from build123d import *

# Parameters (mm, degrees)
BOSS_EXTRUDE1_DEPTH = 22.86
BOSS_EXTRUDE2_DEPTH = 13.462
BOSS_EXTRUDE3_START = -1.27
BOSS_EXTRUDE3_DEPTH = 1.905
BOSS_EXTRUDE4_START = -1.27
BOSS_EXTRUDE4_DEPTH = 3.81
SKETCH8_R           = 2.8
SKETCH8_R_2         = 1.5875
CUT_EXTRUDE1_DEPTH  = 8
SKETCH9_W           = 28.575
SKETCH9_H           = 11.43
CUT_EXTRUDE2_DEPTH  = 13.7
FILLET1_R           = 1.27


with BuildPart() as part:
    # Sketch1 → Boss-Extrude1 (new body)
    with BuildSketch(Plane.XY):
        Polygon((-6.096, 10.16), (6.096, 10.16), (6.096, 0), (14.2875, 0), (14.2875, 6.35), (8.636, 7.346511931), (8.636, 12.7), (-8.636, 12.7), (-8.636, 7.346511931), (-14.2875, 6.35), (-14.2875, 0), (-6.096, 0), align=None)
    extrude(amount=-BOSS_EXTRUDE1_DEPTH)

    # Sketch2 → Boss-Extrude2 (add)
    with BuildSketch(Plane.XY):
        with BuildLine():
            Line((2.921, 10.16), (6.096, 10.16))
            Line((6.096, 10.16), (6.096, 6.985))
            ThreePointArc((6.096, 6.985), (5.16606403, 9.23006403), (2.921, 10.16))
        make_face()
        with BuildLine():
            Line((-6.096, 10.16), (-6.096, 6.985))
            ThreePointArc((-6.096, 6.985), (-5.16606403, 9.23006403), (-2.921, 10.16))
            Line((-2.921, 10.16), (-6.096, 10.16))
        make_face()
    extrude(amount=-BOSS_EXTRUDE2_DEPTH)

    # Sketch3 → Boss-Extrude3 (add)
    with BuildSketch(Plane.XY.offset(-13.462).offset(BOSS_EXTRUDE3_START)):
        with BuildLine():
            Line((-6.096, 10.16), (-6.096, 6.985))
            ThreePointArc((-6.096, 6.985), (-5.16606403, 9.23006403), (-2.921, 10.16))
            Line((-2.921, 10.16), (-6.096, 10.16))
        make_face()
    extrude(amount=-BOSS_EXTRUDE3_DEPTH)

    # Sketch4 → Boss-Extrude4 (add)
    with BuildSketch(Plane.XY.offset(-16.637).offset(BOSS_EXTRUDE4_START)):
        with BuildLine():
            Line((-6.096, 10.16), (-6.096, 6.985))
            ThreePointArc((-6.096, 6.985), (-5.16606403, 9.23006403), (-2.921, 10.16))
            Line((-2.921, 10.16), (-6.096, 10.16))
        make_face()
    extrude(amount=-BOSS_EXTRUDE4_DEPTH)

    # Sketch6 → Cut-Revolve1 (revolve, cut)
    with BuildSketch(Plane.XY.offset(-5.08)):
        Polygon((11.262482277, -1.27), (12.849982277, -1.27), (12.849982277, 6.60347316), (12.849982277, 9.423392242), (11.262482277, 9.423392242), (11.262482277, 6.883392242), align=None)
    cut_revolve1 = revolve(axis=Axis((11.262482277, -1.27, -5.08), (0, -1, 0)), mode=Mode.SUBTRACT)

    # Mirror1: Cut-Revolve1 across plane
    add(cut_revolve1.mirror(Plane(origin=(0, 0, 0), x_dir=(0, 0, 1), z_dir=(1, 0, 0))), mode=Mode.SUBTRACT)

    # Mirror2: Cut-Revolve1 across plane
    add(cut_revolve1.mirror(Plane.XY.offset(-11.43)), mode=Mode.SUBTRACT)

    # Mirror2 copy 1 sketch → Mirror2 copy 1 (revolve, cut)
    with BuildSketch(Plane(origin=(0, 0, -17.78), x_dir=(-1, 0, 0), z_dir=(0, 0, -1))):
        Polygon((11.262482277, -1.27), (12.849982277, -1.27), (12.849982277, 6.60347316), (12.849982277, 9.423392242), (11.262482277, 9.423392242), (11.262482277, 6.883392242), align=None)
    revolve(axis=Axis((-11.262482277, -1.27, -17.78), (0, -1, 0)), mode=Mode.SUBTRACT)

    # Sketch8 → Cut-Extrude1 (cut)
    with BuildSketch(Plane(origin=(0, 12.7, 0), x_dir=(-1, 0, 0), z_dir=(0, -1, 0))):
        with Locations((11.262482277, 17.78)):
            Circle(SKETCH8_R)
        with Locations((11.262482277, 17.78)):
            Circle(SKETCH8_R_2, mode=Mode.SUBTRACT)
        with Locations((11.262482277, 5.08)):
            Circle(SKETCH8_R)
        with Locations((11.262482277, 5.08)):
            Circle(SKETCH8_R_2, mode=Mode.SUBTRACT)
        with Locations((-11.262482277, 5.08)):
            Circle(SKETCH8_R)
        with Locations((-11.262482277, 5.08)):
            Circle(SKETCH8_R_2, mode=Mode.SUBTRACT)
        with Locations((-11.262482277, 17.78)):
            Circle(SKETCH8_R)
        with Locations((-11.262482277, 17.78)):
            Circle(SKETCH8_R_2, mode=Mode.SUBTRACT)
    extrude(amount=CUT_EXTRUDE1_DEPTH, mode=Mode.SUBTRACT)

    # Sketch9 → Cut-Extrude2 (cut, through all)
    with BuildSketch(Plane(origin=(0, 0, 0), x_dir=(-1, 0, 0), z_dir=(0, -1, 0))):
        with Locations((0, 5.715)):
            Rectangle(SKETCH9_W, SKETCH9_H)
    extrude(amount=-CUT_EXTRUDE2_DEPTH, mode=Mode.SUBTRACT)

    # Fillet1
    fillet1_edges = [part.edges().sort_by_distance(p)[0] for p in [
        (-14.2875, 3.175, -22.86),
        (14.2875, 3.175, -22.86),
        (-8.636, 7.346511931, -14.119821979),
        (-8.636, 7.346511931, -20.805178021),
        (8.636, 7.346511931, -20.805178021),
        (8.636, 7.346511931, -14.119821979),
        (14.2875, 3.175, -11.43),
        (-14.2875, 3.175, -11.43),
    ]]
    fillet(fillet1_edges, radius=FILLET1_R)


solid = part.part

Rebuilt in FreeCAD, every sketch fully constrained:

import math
import FreeCAD as App
import Part
import Sketcher

V = App.Vector
Q = App.Units.Quantity


def edges_at(feature, points):
    """Names of the edges that pass closest to the given points."""
    edges = feature.Shape.Edges
    near = lambda p: min(range(len(edges)), key=lambda i: edges[i].distToShape(Part.Vertex(*p))[0])
    return sorted({f"Edge{near(p) + 1}" for p in points})


def add_polygon(sketch, points):
    """Adds a closed chain of lines whose ends are joined by coincident constraints."""
    first, n = sketch.GeometryCount, len(points)
    for a, b in zip(points, points[1:] + points[:1]):
        sketch.addGeometry(Part.LineSegment(App.Vector(*a, 0), App.Vector(*b, 0)), False)
    for i in range(n):
        sketch.addConstraint(Sketcher.Constraint("Coincident", first + i, 2, first + (i + 1) % n, 1))

doc = App.newDocument("Part")
params = doc.addObject("Spreadsheet::Sheet", "Params")
for row, (alias, value) in enumerate([
    ("sketch1_height", "0.4 in"),
    ("sketch1_width", "0.48 in"),
    ("sketch1_width2", "0.68 in"),
    ("sketch1_height2", "0.25 in"),
    ("pad1_length", "0.9 in"),
    ("sketch2_radius", "0.125 in"),
    ("pad2_length", "0.53 in"),
    ("sketch3_radius", "0.125 in"),
    ("pad3_length", "0.075 in"),
    ("sketch4_radius", "0.125 in"),
    ("pad4_length", "0.15 in"),
    ("sketch5_width", "0.0625 in"),
    ("groove_angle", "360 deg"),
    ("sketch6_width", "0.0625 in"),
    ("groove2_angle", "360 deg"),
    ("sketch7_diameter", "0.125 in"),
    ("pocket1_length", "8 mm"),
    ("sketch8_height", "0.45 in"),
    ("sketch8_width", "1.125 in"),
    ("fillet_radius", "0.05 in"),
], start=1):
    params.set(f"A{row}", alias)
    params.set(f"B{row}", "=" + value)
    params.setAlias(f"B{row}", alias)

body = doc.addObject("PartDesign::Body", "Body")

# Sketch on XY plane
sketch1 = body.newObject("Sketcher::SketchObject", "Sketch")
sketch1.AttachmentSupport = (doc.getObject("XY_Plane"), [""])
sketch1.MapMode = "FlatFace"
add_polygon(sketch1, [(-6, 10), (6, 10), (6, 0), (14, 0), (14, 6), (9, 7), (9, 13), (-9, 13), (-9, 7), (-14, 6), (-14, 0), (-6, 0)])  # lines 0-11
sketch1.addConstraint([
    Sketcher.Constraint("Horizontal", 0),
    Sketcher.Constraint("Vertical", 1),
    Sketcher.Constraint("Horizontal", 2),
    Sketcher.Constraint("Vertical", 3),
    Sketcher.Constraint("Vertical", 5),
    Sketcher.Constraint("Horizontal", 6),
    Sketcher.Constraint("Vertical", 7),
    Sketcher.Constraint("Vertical", 9),
    Sketcher.Constraint("Horizontal", 10),
    Sketcher.Constraint("Vertical", 11),
    Sketcher.Constraint("Symmetric", 2, 2, 9, 2, -1, 1),
    Sketcher.Constraint("Symmetric", 4, 2, 7, 2, -2),
    Sketcher.Constraint("Symmetric", 1, 2, 10, 2, -2),
    Sketcher.Constraint("Horizontal", 3, 2, 8, 2),
    Sketcher.Constraint("DistanceY", 1, 2, 1, 1, Q("0.4 in")),
    Sketcher.Constraint("Angle", 4, Q("170 deg")),
    Sketcher.Constraint("DistanceX", 0, 1, 0, 2, Q("0.48 in")),
    Sketcher.Constraint("DistanceX", 6, 2, 6, 1, Q("0.68 in")),
    Sketcher.Constraint("DistanceY", 3, 1, 3, 2, Q("0.25 in")),
    Sketcher.Constraint("DistanceY", -1, 1, 5, 2, Q("0.5 in")),
    Sketcher.Constraint("DistanceX", 2, 1, 2, 2, Q("0.3225 in")),
])
sketch1.setExpression("Constraints[26]", "Params.sketch1_height")
sketch1.setExpression("Constraints[28]", "Params.sketch1_width")
sketch1.setExpression("Constraints[29]", "Params.sketch1_width2")
sketch1.setExpression("Constraints[30]", "Params.sketch1_height2")
pad1 = body.newObject("PartDesign::Pad", "Pad")
pad1.Profile = sketch1
pad1.setExpression("Length", "Params.pad1_length")
pad1.Reversed = True

# Sketch on XY plane
sketch2 = body.newObject("Sketcher::SketchObject", "Sketch001")
sketch2.AttachmentSupport = (doc.getObject("XY_Plane"), [""])
sketch2.MapMode = "FlatFace"
sketch2.addGeometry([
    Part.LineSegment(V(6.1, 10.2, 0), V(2.9, 10.2, 0)),  # 0
    Part.ArcOfCircle(Part.Circle(V(2.9, 7, 0), V(0, 0, 1), 3.2), math.radians(0), math.radians(90)),  # 1
    Part.LineSegment(V(6.1, 7, 0), V(6.1, 10.2, 0)),  # 2
    Part.LineSegment(V(-6.1, 10.2, 0), V(-6.1, 7, 0)),  # 3
    Part.ArcOfCircle(Part.Circle(V(-2.9, 7, 0), V(0, 0, 1), 3.2), math.radians(90), math.radians(180)),  # 4
    Part.LineSegment(V(-2.9, 10.2, 0), V(-6.1, 10.2, 0)),  # 5
], False)
sketch2.addConstraint([
    Sketcher.Constraint("Tangent", 0, 2, 1, 2),
    Sketcher.Constraint("Tangent", 1, 1, 2, 1),
    Sketcher.Constraint("Coincident", 2, 2, 0, 1),
    Sketcher.Constraint("Tangent", 3, 2, 4, 2),
    Sketcher.Constraint("Tangent", 4, 1, 5, 1),
    Sketcher.Constraint("Coincident", 5, 2, 3, 1),
    Sketcher.Constraint("Horizontal", 0),
    Sketcher.Constraint("Vertical", 2),
    Sketcher.Constraint("Vertical", 3),
    Sketcher.Constraint("Horizontal", 5),
    Sketcher.Constraint("Equal", 1, 4),
    Sketcher.Constraint("Symmetric", 1, 3, 4, 3, -2),
    Sketcher.Constraint("Radius", 1, Q("0.125 in")),
    Sketcher.Constraint("DistanceY", -1, 1, 0, 2, Q("0.4 in")),
    Sketcher.Constraint("DistanceX", -1, 1, 1, 1, Q("0.24 in")),
])
sketch2.setExpression("Constraints[12]", "Params.sketch2_radius")
pad2 = body.newObject("PartDesign::Pad", "Pad001")
pad2.Profile = sketch2
pad2.setExpression("Length", "Params.pad2_length")
pad2.Reversed = True

# Sketch on XY plane
sketch3 = body.newObject("Sketcher::SketchObject", "Sketch002")
sketch3.AttachmentSupport = (doc.getObject("XY_Plane"), [""])
sketch3.MapMode = "FlatFace"
sketch3.AttachmentOffset = App.Placement(V(0, 0, -0.58 * 25.4), App.Rotation())
sketch3.addGeometry([
    Part.LineSegment(V(-6.1, 10.2, 0), V(-6.1, 7, 0)),
    Part.ArcOfCircle(Part.Circle(V(-2.9, 7, 0), V(0, 0, 1), 3.2), math.radians(90), math.radians(180)),
    Part.LineSegment(V(-2.9, 10.2, 0), V(-6.1, 10.2, 0)),
], False)
sketch3.addConstraint([
    Sketcher.Constraint("Tangent", 0, 2, 1, 2),
    Sketcher.Constraint("Tangent", 1, 1, 2, 1),
    Sketcher.Constraint("Coincident", 2, 2, 0, 1),
    Sketcher.Constraint("Vertical", 0),
    Sketcher.Constraint("Horizontal", 2),
    Sketcher.Constraint("Radius", 1, Q("0.125 in")),
    Sketcher.Constraint("DistanceY", -1, 1, 1, 1, Q("0.4 in")),
    Sketcher.Constraint("DistanceX", 0, 2, -1, 1, Q("0.24 in")),
])
sketch3.setExpression("Constraints[5]", "Params.sketch3_radius")
pad3 = body.newObject("PartDesign::Pad", "Pad002")
pad3.Profile = sketch3
pad3.setExpression("Length", "Params.pad3_length")
pad3.Reversed = True

# Sketch on XY plane
sketch4 = body.newObject("Sketcher::SketchObject", "Sketch003")
sketch4.AttachmentSupport = (doc.getObject("XY_Plane"), [""])
sketch4.MapMode = "FlatFace"
sketch4.AttachmentOffset = App.Placement(V(0, 0, -0.705 * 25.4), App.Rotation())
sketch4.addGeometry([
    Part.LineSegment(V(-6.1, 10.2, 0), V(-6.1, 7, 0)),
    Part.ArcOfCircle(Part.Circle(V(-2.9, 7, 0), V(0, 0, 1), 3.2), math.radians(90), math.radians(180)),
    Part.LineSegment(V(-2.9, 10.2, 0), V(-6.1, 10.2, 0)),
], False)
sketch4.addConstraint([
    Sketcher.Constraint("Tangent", 0, 2, 1, 2),
    Sketcher.Constraint("Tangent", 1, 1, 2, 1),
    Sketcher.Constraint("Coincident", 2, 2, 0, 1),
    Sketcher.Constraint("Vertical", 0),
    Sketcher.Constraint("Horizontal", 2),
    Sketcher.Constraint("Radius", 1, Q("0.125 in")),
    Sketcher.Constraint("DistanceY", -1, 1, 1, 1, Q("0.4 in")),
    Sketcher.Constraint("DistanceX", 0, 2, -1, 1, Q("0.24 in")),
])
sketch4.setExpression("Constraints[5]", "Params.sketch4_radius")
pad4 = body.newObject("PartDesign::Pad", "Pad003")
pad4.Profile = sketch4
pad4.setExpression("Length", "Params.pad4_length")
pad4.Reversed = True

# Sketch on XY plane
sketch5 = body.newObject("Sketcher::SketchObject", "Sketch004")
sketch5.AttachmentSupport = (doc.getObject("XY_Plane"), [""])
sketch5.MapMode = "FlatFace"
sketch5.AttachmentOffset = App.Placement(V(0, 0, -0.2 * 25.4), App.Rotation())
add_polygon(sketch5, [(11.3, -1.3), (12.8, -1.3), (12.8, 9.4), (11.3, 9.4)])  # lines 0-3
sketch5.addGeometry(Part.LineSegment(V(11.3, 9.4, 0), V(11.3, -1.3, 0)), True)  # axis
sketch5.addConstraint([
    Sketcher.Constraint("Horizontal", 0),
    Sketcher.Constraint("Vertical", 1),
    Sketcher.Constraint("Horizontal", 2),
    Sketcher.Constraint("Vertical", 3),
    Sketcher.Constraint("Vertical", 4),
    Sketcher.Constraint("Coincident", 4, 1, 2, 2),
    Sketcher.Constraint("Horizontal", 0, 2, 4, 2),
    Sketcher.Constraint("DistanceX", 0, 1, 0, 2, Q("0.0625 in")),
    Sketcher.Constraint("DistanceY", 0, 2, -1, 1, Q("0.05 in")),
    Sketcher.Constraint("DistanceY", 1, 1, 1, 2, 10.693392),
    Sketcher.Constraint("DistanceX", -1, 1, 0, 2, 12.849982),
])
sketch5.setExpression("Constraints[11]", "Params.sketch5_width")
groove = body.newObject("PartDesign::Groove", "Groove")
groove.Profile = sketch5
groove.ReferenceAxis = (sketch5, ["Axis0"])
groove.setExpression("Angle", "Params.groove_angle")
doc.recompute()

mirrored = body.newObject("PartDesign::Mirrored", "Mirrored")
mirrored.Originals = [groove]
mirrored.MirrorPlane = (doc.getObject("YZ_Plane"), [""])
body.Tip = mirrored
doc.recompute()

datumplane = body.newObject("PartDesign::Plane", "DatumPlane")
datumplane.AttachmentSupport = (doc.getObject("XY_Plane"), [""])
datumplane.MapMode = "FlatFace"
datumplane.AttachmentOffset = App.Placement(V(0, 0, -0.45 * 25.4), App.Rotation())
mirrored2 = body.newObject("PartDesign::Mirrored", "Mirrored001")
mirrored2.Originals = [groove]
mirrored2.MirrorPlane = (datumplane, [""])
body.Tip = mirrored2

# Sketch on XY plane
sketch6 = body.newObject("Sketcher::SketchObject", "Sketch005")
sketch6.AttachmentSupport = (doc.getObject("XY_Plane"), [""])
sketch6.MapMode = "FlatFace"
sketch6.AttachmentOffset = App.Placement(V(0, 0, -0.7 * 25.4), App.Rotation())
add_polygon(sketch6, [(-11.3, -1.3), (-12.8, -1.3), (-12.8, 9.4), (-11.3, 9.4)])  # lines 0-3
sketch6.addGeometry(Part.LineSegment(V(-11.3, 9.4, 0), V(-11.3, -1.3, 0)), True)  # axis
sketch6.addConstraint([
    Sketcher.Constraint("Horizontal", 0),
    Sketcher.Constraint("Vertical", 1),
    Sketcher.Constraint("Horizontal", 2),
    Sketcher.Constraint("Vertical", 3),
    Sketcher.Constraint("Vertical", 4),
    Sketcher.Constraint("Coincident", 4, 1, 2, 2),
    Sketcher.Constraint("Horizontal", 0, 2, 4, 2),
    Sketcher.Constraint("DistanceX", 0, 2, 0, 1, Q("0.0625 in")),
    Sketcher.Constraint("DistanceY", 0, 2, -1, 1, Q("0.05 in")),
    Sketcher.Constraint("DistanceY", 1, 1, 1, 2, 10.693392),
    Sketcher.Constraint("DistanceX", 0, 2, -1, 1, 12.849982),
])
sketch6.setExpression("Constraints[11]", "Params.sketch6_width")
groove2 = body.newObject("PartDesign::Groove", "Groove001")
groove2.Profile = sketch6
groove2.ReferenceAxis = (sketch6, ["Axis0"])
groove2.setExpression("Angle", "Params.groove2_angle")

# Sketch on XZ plane
sketch7 = body.newObject("Sketcher::SketchObject", "Sketch006")
sketch7.AttachmentSupport = (doc.getObject("XZ_Plane"), [""])
sketch7.MapMode = "FlatFace"
sketch7.AttachmentOffset = App.Placement(V(0, 0, -0.5 * 25.4), App.Rotation())
sketch7.addGeometry([
    Part.Circle(V(-11.3, -17.8, 0), V(0, 0, 1), 2.8),  # 0
    Part.Circle(V(-11.3, -17.8, 0), V(0, 0, 1), 1.6),  # 1
    Part.Circle(V(-11.3, -5.1, 0), V(0, 0, 1), 2.8),  # 2
    Part.Circle(V(-11.3, -5.1, 0), V(0, 0, 1), 1.6),  # 3
    Part.Circle(V(11.3, -5.1, 0), V(0, 0, 1), 2.8),  # 4
    Part.Circle(V(11.3, -5.1, 0), V(0, 0, 1), 1.6),  # 5
    Part.Circle(V(11.3, -17.8, 0), V(0, 0, 1), 2.8),  # 6
    Part.Circle(V(11.3, -17.8, 0), V(0, 0, 1), 1.6),  # 7
], False)
sketch7.addConstraint([
    Sketcher.Constraint("Coincident", 1, 3, 0, 3),
    Sketcher.Constraint("Coincident", 3, 3, 2, 3),
    Sketcher.Constraint("Coincident", 5, 3, 4, 3),
    Sketcher.Constraint("Coincident", 7, 3, 6, 3),
    Sketcher.Constraint("Equal", 0, 2),
    Sketcher.Constraint("Equal", 1, 3),
    Sketcher.Constraint("Equal", 2, 4),
    Sketcher.Constraint("Equal", 3, 5),
    Sketcher.Constraint("Equal", 4, 6),
    Sketcher.Constraint("Equal", 5, 7),
    Sketcher.Constraint("Symmetric", 2, 3, 4, 3, -2),
    Sketcher.Constraint("Symmetric", 0, 3, 6, 3, -2),
    Sketcher.Constraint("Vertical", 1, 3, 2, 3),
    Sketcher.Constraint("Diameter", 1, Q("0.125 in")),
    Sketcher.Constraint("DistanceY", 0, 3, -1, 1, Q("0.7 in")),
    Sketcher.Constraint("DistanceY", 2, 3, -1, 1, Q("0.2 in")),
    Sketcher.Constraint("Diameter", 0, 5.6),
    Sketcher.Constraint("DistanceX", 0, 3, -1, 1, 11.262482),
])
sketch7.setExpression("Constraints[13]", "Params.sketch7_diameter")
pocket1 = body.newObject("PartDesign::Pocket", "Pocket")
pocket1.Profile = sketch7
pocket1.setExpression("Length", "Params.pocket1_length")
pocket1.Reversed = True

# Sketch on XZ plane
sketch8 = body.newObject("Sketcher::SketchObject", "Sketch007")
sketch8.AttachmentSupport = (doc.getObject("XZ_Plane"), [""])
sketch8.MapMode = "FlatFace"
add_polygon(sketch8, [(14, -11), (14, 0), (-14, 0), (-14, -11)])  # lines 0-3
sketch8.addConstraint([
    Sketcher.Constraint("Vertical", 0),
    Sketcher.Constraint("Horizontal", 1),
    Sketcher.Constraint("Vertical", 2),
    Sketcher.Constraint("Horizontal", 3),
    Sketcher.Constraint("Symmetric", 0, 2, 1, 2, -1, 1),
    Sketcher.Constraint("DistanceY", 0, 1, 0, 2, Q("0.45 in")),
    Sketcher.Constraint("DistanceX", 1, 2, 1, 1, Q("1.125 in")),
])
sketch8.setExpression("Constraints[9]", "Params.sketch8_height")
sketch8.setExpression("Constraints[10]", "Params.sketch8_width")
pocket2 = body.newObject("PartDesign::Pocket", "Pocket001")
pocket2.Profile = sketch8
pocket2.Type = "ThroughAll"
doc.recompute()

fillet = body.newObject("PartDesign::Fillet", "Fillet")
fillet.Base = (pocket2, edges_at(pocket2, [
    (-14.287, 3.175, -22.86),
    (14.287, 3.175, -22.86),
    (-8.636, 7.347, -14.12),
    (-8.636, 7.347, -20.805),
    (8.636, 7.347, -20.805),
    (8.636, 7.347, -14.12),
    (14.287, 3.175, -11.43),
    (-14.287, 3.175, -11.43),
]))
fillet.setExpression("Radius", "Params.fillet_radius")

doc.recompute()
